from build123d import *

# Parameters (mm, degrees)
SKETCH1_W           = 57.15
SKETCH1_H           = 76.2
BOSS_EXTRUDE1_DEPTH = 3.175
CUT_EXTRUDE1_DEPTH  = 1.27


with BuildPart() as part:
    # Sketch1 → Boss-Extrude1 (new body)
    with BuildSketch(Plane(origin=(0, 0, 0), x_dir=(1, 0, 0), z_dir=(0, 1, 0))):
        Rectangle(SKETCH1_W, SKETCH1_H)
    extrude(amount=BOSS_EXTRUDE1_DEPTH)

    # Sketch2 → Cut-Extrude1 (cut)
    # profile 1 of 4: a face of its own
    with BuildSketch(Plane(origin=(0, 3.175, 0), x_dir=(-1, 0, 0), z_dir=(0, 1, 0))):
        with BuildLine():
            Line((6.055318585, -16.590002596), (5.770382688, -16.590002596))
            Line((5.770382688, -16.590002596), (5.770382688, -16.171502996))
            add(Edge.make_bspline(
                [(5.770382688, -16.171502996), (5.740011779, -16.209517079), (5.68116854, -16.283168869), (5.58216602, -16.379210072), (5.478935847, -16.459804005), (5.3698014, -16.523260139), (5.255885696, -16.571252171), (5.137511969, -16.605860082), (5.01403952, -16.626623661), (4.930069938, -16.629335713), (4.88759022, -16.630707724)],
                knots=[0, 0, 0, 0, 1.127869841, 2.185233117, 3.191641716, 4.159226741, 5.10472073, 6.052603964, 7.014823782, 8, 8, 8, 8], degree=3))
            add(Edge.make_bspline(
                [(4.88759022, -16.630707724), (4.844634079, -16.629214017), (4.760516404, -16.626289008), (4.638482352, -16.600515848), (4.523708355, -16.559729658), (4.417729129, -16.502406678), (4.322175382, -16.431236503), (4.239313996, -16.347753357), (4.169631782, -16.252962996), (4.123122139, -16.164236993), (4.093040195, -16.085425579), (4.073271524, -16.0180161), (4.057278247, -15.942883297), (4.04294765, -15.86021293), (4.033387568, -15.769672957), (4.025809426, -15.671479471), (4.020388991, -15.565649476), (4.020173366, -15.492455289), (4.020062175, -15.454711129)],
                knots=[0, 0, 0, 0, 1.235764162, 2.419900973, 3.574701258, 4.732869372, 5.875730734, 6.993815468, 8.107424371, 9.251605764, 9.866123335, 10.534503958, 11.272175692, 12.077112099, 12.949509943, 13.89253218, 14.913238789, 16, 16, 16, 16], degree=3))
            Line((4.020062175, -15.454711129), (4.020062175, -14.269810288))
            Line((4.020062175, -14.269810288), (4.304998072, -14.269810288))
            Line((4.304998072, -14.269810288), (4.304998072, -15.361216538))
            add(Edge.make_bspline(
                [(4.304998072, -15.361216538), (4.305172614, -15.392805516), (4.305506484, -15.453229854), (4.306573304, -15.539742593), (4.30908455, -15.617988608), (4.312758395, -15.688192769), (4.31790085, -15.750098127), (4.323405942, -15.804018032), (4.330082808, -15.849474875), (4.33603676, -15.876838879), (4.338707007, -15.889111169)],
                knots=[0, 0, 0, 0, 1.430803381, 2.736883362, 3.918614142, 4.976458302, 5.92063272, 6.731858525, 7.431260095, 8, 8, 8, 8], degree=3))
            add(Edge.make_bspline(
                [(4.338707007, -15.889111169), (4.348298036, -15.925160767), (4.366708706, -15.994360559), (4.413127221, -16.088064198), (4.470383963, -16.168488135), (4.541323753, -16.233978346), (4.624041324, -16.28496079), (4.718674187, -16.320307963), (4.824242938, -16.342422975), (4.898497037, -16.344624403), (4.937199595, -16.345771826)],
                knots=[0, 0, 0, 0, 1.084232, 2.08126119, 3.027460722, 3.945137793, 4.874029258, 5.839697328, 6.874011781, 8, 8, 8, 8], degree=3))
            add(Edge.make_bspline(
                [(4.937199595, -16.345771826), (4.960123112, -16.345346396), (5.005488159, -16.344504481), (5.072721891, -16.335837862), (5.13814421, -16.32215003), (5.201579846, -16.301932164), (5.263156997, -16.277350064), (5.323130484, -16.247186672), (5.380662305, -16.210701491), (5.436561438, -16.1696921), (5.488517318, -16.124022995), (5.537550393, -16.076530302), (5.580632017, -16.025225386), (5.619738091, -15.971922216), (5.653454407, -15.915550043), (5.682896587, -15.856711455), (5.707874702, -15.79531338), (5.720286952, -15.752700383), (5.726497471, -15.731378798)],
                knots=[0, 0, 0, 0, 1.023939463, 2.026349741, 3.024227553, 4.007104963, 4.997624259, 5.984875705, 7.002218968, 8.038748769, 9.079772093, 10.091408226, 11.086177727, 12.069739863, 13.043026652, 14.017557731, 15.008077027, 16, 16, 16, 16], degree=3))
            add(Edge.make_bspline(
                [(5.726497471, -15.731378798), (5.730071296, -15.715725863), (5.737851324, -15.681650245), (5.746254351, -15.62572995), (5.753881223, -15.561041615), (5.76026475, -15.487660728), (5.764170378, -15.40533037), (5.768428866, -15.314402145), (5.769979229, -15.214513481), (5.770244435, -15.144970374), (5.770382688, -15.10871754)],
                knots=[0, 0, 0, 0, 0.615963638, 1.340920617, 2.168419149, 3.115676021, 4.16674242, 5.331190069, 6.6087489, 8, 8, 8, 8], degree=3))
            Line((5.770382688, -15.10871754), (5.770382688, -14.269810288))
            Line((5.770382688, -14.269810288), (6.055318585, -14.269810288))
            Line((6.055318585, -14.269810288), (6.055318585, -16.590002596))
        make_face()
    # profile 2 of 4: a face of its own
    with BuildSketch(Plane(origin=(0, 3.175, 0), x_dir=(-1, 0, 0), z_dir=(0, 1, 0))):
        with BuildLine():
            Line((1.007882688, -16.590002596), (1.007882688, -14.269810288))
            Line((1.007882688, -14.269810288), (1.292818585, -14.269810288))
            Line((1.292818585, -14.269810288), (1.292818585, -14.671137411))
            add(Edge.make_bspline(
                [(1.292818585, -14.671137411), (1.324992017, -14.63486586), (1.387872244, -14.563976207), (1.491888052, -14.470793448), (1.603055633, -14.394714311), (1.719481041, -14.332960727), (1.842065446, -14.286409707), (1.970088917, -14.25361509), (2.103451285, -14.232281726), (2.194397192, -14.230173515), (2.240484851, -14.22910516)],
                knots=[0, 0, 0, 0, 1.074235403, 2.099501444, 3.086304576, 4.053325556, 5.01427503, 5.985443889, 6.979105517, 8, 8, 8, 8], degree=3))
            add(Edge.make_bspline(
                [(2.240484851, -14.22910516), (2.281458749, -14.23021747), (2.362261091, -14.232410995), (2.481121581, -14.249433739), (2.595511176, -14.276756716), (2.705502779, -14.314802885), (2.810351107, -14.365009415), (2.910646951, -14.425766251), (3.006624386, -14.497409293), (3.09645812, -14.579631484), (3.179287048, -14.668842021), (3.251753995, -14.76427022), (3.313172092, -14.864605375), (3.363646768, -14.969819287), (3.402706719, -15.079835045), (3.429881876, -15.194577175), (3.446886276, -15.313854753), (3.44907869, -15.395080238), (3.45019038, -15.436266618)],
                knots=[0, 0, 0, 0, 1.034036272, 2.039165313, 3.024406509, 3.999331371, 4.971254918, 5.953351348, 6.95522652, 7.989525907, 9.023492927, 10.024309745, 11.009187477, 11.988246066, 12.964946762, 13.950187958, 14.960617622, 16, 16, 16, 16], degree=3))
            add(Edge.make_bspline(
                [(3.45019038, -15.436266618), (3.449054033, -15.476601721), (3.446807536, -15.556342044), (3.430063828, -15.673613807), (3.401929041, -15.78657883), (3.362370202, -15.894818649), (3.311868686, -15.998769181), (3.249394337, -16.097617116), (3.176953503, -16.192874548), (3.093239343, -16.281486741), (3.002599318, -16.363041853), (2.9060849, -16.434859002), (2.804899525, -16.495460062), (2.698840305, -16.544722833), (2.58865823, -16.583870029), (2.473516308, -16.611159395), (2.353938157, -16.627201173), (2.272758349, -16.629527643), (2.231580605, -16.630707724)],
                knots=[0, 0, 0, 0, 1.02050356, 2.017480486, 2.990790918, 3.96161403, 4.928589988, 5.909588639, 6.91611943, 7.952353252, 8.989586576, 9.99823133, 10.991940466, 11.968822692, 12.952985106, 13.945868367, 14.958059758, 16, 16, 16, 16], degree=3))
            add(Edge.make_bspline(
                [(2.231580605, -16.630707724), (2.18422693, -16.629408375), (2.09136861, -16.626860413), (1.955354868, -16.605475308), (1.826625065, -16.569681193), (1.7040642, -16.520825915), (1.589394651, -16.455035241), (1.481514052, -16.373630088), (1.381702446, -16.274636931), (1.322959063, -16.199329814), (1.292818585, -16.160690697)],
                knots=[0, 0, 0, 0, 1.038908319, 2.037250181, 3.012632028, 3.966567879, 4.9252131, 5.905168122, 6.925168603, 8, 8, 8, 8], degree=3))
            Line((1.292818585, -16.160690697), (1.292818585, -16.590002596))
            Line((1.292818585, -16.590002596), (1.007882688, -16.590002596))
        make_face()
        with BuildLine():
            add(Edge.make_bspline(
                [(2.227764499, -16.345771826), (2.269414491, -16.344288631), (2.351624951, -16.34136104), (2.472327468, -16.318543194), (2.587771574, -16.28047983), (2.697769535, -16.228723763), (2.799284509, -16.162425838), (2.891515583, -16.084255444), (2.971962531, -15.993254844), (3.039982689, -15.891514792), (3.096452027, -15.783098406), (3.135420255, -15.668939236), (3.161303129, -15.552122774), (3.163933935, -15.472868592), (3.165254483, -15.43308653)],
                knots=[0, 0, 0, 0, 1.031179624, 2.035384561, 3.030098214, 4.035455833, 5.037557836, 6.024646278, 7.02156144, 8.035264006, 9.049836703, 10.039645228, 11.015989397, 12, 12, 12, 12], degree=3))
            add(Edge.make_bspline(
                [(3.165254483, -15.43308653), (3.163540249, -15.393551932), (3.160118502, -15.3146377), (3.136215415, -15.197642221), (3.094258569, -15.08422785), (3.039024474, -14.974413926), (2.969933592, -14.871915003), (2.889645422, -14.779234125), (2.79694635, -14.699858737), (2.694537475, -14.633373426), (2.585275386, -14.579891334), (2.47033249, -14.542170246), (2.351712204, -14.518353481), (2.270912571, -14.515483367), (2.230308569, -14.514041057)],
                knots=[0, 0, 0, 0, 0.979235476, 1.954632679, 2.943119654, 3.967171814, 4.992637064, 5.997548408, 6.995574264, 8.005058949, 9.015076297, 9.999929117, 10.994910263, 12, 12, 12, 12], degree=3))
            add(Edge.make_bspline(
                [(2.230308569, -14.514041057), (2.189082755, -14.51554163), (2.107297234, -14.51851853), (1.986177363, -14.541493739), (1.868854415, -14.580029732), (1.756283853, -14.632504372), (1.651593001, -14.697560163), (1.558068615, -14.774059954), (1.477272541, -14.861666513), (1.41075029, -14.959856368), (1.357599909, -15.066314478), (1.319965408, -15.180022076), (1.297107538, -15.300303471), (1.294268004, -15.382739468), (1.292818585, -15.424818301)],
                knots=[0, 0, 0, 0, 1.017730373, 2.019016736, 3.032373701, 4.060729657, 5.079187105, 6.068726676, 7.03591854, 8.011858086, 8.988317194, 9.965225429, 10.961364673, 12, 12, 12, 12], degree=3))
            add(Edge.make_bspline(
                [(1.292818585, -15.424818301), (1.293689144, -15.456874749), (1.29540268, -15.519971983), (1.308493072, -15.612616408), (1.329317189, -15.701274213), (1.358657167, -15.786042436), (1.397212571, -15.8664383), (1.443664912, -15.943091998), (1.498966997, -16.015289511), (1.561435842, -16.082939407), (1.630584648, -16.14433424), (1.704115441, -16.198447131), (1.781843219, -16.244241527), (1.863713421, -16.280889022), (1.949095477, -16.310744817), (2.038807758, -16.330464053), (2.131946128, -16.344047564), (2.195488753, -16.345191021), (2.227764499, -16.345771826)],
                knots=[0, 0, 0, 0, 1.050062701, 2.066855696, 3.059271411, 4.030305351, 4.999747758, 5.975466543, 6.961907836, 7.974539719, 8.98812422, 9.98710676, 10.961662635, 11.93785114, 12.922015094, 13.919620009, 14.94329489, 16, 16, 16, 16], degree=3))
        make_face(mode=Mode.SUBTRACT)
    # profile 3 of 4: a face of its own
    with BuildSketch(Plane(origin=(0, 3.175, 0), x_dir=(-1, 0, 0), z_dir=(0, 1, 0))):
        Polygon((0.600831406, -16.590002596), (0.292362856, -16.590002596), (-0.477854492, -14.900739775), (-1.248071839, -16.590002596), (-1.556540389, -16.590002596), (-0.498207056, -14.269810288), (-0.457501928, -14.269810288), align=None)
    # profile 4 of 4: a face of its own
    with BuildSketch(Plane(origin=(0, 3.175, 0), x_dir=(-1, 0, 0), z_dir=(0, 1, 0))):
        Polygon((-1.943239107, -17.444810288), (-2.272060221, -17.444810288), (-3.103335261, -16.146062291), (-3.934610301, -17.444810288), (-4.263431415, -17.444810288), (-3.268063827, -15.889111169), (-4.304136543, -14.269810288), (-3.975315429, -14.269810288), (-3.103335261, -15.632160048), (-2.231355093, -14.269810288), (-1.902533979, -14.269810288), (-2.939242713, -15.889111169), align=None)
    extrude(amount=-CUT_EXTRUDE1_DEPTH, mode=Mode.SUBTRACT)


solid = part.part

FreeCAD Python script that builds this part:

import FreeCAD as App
import Part
import Sketcher

V = App.Vector
Q = App.Units.Quantity

doc = App.newDocument("Part")
body = doc.addObject("PartDesign::Body", "Body")

# Sketch on XZ plane
sketch1 = body.newObject("Sketcher::SketchObject", "Sketch")
sketch1.AttachmentSupport = (doc.getObject("XZ_Plane"), [""])
sketch1.MapMode = "FlatFace"
sketch1.addGeometry(Part.LineSegment(V(-29, -38, 0), V(-29, 38, 0)), False)
sketch1.addGeometry(Part.LineSegment(V(-29, 38, 0), V(29, 38, 0)), False)
sketch1.addGeometry(Part.LineSegment(V(29, 38, 0), V(29, -38, 0)), False)
sketch1.addGeometry(Part.LineSegment(V(29, -38, 0), V(-29, -38, 0)), False)
sketch1.addConstraint(Sketcher.Constraint("Coincident", 0, 2, 1, 1))
sketch1.addConstraint(Sketcher.Constraint("Coincident", 1, 2, 2, 1))
sketch1.addConstraint(Sketcher.Constraint("Coincident", 2, 2, 3, 1))
sketch1.addConstraint(Sketcher.Constraint("Coincident", 3, 2, 0, 1))
sketch1.addConstraint(Sketcher.Constraint("Vertical", 0))
sketch1.addConstraint(Sketcher.Constraint("Horizontal", 1))
sketch1.addConstraint(Sketcher.Constraint("Vertical", 2))
sketch1.addConstraint(Sketcher.Constraint("Horizontal", 3))
sketch1.addConstraint(Sketcher.Constraint("Symmetric", 0, 2, 2, 2, -1, 1))
sketch1.addConstraint(Sketcher.Constraint("DistanceY", 0, 1, 0, 2, Q("3 in")))
sketch1.addConstraint(Sketcher.Constraint("DistanceX", 1, 1, 1, 2, Q("2.25 in")))
pad1 = body.newObject("PartDesign::Pad", "Pad")
pad1.Profile = sketch1
pad1.Length = Q("0.125 in")
pad1.Reversed = True

# Sketch on XZ plane
sketch2 = body.newObject("Sketcher::SketchObject", "Sketch001")
sketch2.AttachmentSupport = (doc.getObject("XZ_Plane"), [""])
sketch2.MapMode = "FlatFace"
sketch2.AttachmentOffset = App.Placement(V(0, 0, -0.125 * 25.4), App.Rotation())
sketch2.addGeometry(Part.LineSegment(V(-5.770383, -16.590003, 0), V(-6.055319, -16.590003, 0)), False)
sketch2.addGeometry(Part.LineSegment(V(-6.055319, -16.590003, 0), V(-6.055319, -14.26981, 0)), False)
sketch2.addGeometry(Part.LineSegment(V(-6.055319, -14.26981, 0), V(-5.770383, -14.26981, 0)), False)
sketch2.addGeometry(Part.LineSegment(V(-5.770383, -14.26981, 0), V(-5.770383, -15.108718, 0)), False)
sketch2.addGeometry(Part.BSplineCurve([V(-5.726497, -15.731379, 0), V(-5.730071, -15.715726, 0), V(-5.737851, -15.68165, 0), V(-5.746254, -15.62573, 0), V(-5.753881, -15.561042, 0), V(-5.760265, -15.487661, 0), V(-5.76417, -15.40533, 0), V(-5.768429, -15.314402, 0), V(-5.769979, -15.214513, 0), V(-5.770244, -15.14497, 0), V(-5.770383, -15.108718, 0)], [4, 1, 1, 1, 1, 1, 1, 1, 4], [0, 0.615963638, 1.340920617, 2.168419149, 3.115676021, 4.16674242, 5.331190069, 6.6087489, 8], False, 3, [1, 1, 1, 1, 1, 1, 1, 1, 1, 1, 1], False), False)
sketch2.addGeometry(Part.BSplineCurve([V(-4.9372, -16.345772, 0), V(-4.960123, -16.345346, 0), V(-5.005488, -16.344504, 0), V(-5.072722, -16.335838, 0), V(-5.138144, -16.32215, 0), V(-5.20158, -16.301932, 0), V(-5.263157, -16.27735, 0), V(-5.32313, -16.247187, 0), V(-5.380662, -16.210701, 0), V(-5.436561, -16.169692, 0), V(-5.488517, -16.124023, 0), V(-5.53755, -16.07653, 0), V(-5.580632, -16.025225, 0), V(-5.619738, -15.971922, 0), V(-5.653454, -15.91555, 0), V(-5.682897, -15.856711, 0), V(-5.707875, -15.795313, 0), V(-5.720287, -15.7527, 0), V(-5.726497, -15.731379, 0)], [4, 1, 1, 1, 1, 1, 1, 1, 1, 1, 1, 1, 1, 1, 1, 1, 4], [0, 1.023939463, 2.026349741, 3.024227553, 4.007104963, 4.997624259, 5.984875705, 7.002218968, 8.038748769, 9.079772093, 10.091408226, 11.086177727, 12.069739863, 13.043026652, 14.017557731, 15.008077027, 16], False, 3, [1, 1, 1, 1, 1, 1, 1, 1, 1, 1, 1, 1, 1, 1, 1, 1, 1, 1, 1], False), False)
sketch2.addGeometry(Part.BSplineCurve([V(-4.338707, -15.889111, 0), V(-4.348298, -15.925161, 0), V(-4.366709, -15.994361, 0), V(-4.413127, -16.088064, 0), V(-4.470384, -16.168488, 0), V(-4.541324, -16.233978, 0), V(-4.624041, -16.284961, 0), V(-4.718674, -16.320308, 0), V(-4.824243, -16.342423, 0), V(-4.898497, -16.344624, 0), V(-4.9372, -16.345772, 0)], [4, 1, 1, 1, 1, 1, 1, 1, 4], [0, 1.084232, 2.08126119, 3.027460722, 3.945137793, 4.874029258, 5.839697328, 6.874011781, 8], False, 3, [1, 1, 1, 1, 1, 1, 1, 1, 1, 1, 1], False), False)
sketch2.addGeometry(Part.BSplineCurve([V(-4.304998, -15.361217, 0), V(-4.305173, -15.392806, 0), V(-4.305506, -15.45323, 0), V(-4.306573, -15.539743, 0), V(-4.309085, -15.617989, 0), V(-4.312758, -15.688193, 0), V(-4.317901, -15.750098, 0), V(-4.323406, -15.804018, 0), V(-4.330083, -15.849475, 0), V(-4.336037, -15.876839, 0), V(-4.338707, -15.889111, 0)], [4, 1, 1, 1, 1, 1, 1, 1, 4], [0, 1.430803381, 2.736883362, 3.918614142, 4.976458302, 5.92063272, 6.731858525, 7.431260095, 8], False, 3, [1, 1, 1, 1, 1, 1, 1, 1, 1, 1, 1], False), False)
sketch2.addGeometry(Part.LineSegment(V(-4.304998, -15.361217, 0), V(-4.304998, -14.26981, 0)), False)
sketch2.addGeometry(Part.LineSegment(V(-4.304998, -14.26981, 0), V(-4.020062, -14.26981, 0)), False)
sketch2.addGeometry(Part.LineSegment(V(-4.020062, -14.26981, 0), V(-4.020062, -15.454711, 0)), False)
sketch2.addGeometry(Part.BSplineCurve([V(-4.88759, -16.630708, 0), V(-4.844634, -16.629214, 0), V(-4.760516, -16.626289, 0), V(-4.638482, -16.600516, 0), V(-4.523708, -16.55973, 0), V(-4.417729, -16.502407, 0), V(-4.322175, -16.431237, 0), V(-4.239314, -16.347753, 0), V(-4.169632, -16.252963, 0), V(-4.123122, -16.164237, 0), V(-4.09304, -16.085426, 0), V(-4.073272, -16.018016, 0), V(-4.057278, -15.942883, 0), V(-4.042948, -15.860213, 0), V(-4.033388, -15.769673, 0), V(-4.025809, -15.671479, 0), V(-4.020389, -15.565649, 0), V(-4.020173, -15.492455, 0), V(-4.020062, -15.454711, 0)], [4, 1, 1, 1, 1, 1, 1, 1, 1, 1, 1, 1, 1, 1, 1, 1, 4], [0, 1.235764162, 2.419900973, 3.574701258, 4.732869372, 5.875730734, 6.993815468, 8.107424371, 9.251605764, 9.866123335, 10.534503958, 11.272175692, 12.077112099, 12.949509943, 13.89253218, 14.913238789, 16], False, 3, [1, 1, 1, 1, 1, 1, 1, 1, 1, 1, 1, 1, 1, 1, 1, 1, 1, 1, 1], False), False)
sketch2.addGeometry(Part.BSplineCurve([V(-5.770383, -16.171503, 0), V(-5.740012, -16.209517, 0), V(-5.681169, -16.283169, 0), V(-5.582166, -16.37921, 0), V(-5.478936, -16.459804, 0), V(-5.369801, -16.52326, 0), V(-5.255886, -16.571252, 0), V(-5.137512, -16.60586, 0), V(-5.01404, -16.626624, 0), V(-4.93007, -16.629336, 0), V(-4.88759, -16.630708, 0)], [4, 1, 1, 1, 1, 1, 1, 1, 4], [0, 1.127869841, 2.185233117, 3.191641716, 4.159226741, 5.10472073, 6.052603964, 7.014823782, 8], False, 3, [1, 1, 1, 1, 1, 1, 1, 1, 1, 1, 1], False), False)
sketch2.addGeometry(Part.LineSegment(V(-5.770383, -16.171503, 0), V(-5.770383, -16.590003, 0)), False)
sketch2.addGeometry(Part.LineSegment(V(-1.007883, -14.26981, 0), V(-1.007883, -16.590003, 0)), False)
sketch2.addGeometry(Part.LineSegment(V(-1.007883, -16.590003, 0), V(-1.292819, -16.590003, 0)), False)
sketch2.addGeometry(Part.LineSegment(V(-1.292819, -16.590003, 0), V(-1.292819, -16.160691, 0)), False)
sketch2.addGeometry(Part.BSplineCurve([V(-2.231581, -16.630708, 0), V(-2.184227, -16.629408, 0), V(-2.091369, -16.62686, 0), V(-1.955355, -16.605475, 0), V(-1.826625, -16.569681, 0), V(-1.704064, -16.520826, 0), V(-1.589395, -16.455035, 0), V(-1.481514, -16.37363, 0), V(-1.381702, -16.274637, 0), V(-1.322959, -16.19933, 0), V(-1.292819, -16.160691, 0)], [4, 1, 1, 1, 1, 1, 1, 1, 4], [0, 1.038908319, 2.037250181, 3.012632028, 3.966567879, 4.9252131, 5.905168122, 6.925168603, 8], False, 3, [1, 1, 1, 1, 1, 1, 1, 1, 1, 1, 1], False), False)
sketch2.addGeometry(Part.BSplineCurve([V(-3.45019, -15.436267, 0), V(-3.449054, -15.476602, 0), V(-3.446808, -15.556342, 0), V(-3.430064, -15.673614, 0), V(-3.401929, -15.786579, 0), V(-3.36237, -15.894819, 0), V(-3.311869, -15.998769, 0), V(-3.249394, -16.097617, 0), V(-3.176954, -16.192875, 0), V(-3.093239, -16.281487, 0), V(-3.002599, -16.363042, 0), V(-2.906085, -16.434859, 0), V(-2.8049, -16.49546, 0), V(-2.69884, -16.544723, 0), V(-2.588658, -16.58387, 0), V(-2.473516, -16.611159, 0), V(-2.353938, -16.627201, 0), V(-2.272758, -16.629528, 0), V(-2.231581, -16.630708, 0)], [4, 1, 1, 1, 1, 1, 1, 1, 1, 1, 1, 1, 1, 1, 1, 1, 4], [0, 1.02050356, 2.017480486, 2.990790918, 3.96161403, 4.928589988, 5.909588639, 6.91611943, 7.952353252, 8.989586576, 9.99823133, 10.991940466, 11.968822692, 12.952985106, 13.945868367, 14.958059758, 16], False, 3, [1, 1, 1, 1, 1, 1, 1, 1, 1, 1, 1, 1, 1, 1, 1, 1, 1, 1, 1], False), False)
sketch2.addGeometry(Part.BSplineCurve([V(-2.240485, -14.229105, 0), V(-2.281459, -14.230217, 0), V(-2.362261, -14.232411, 0), V(-2.481122, -14.249434, 0), V(-2.595511, -14.276757, 0), V(-2.705503, -14.314803, 0), V(-2.810351, -14.365009, 0), V(-2.910647, -14.425766, 0), V(-3.006624, -14.497409, 0), V(-3.096458, -14.579631, 0), V(-3.179287, -14.668842, 0), V(-3.251754, -14.76427, 0), V(-3.313172, -14.864605, 0), V(-3.363647, -14.969819, 0), V(-3.402707, -15.079835, 0), V(-3.429882, -15.194577, 0), V(-3.446886, -15.313855, 0), V(-3.449079, -15.39508, 0), V(-3.45019, -15.436267, 0)], [4, 1, 1, 1, 1, 1, 1, 1, 1, 1, 1, 1, 1, 1, 1, 1, 4], [0, 1.034036272, 2.039165313, 3.024406509, 3.999331371, 4.971254918, 5.953351348, 6.95522652, 7.989525907, 9.023492927, 10.024309745, 11.009187477, 11.988246066, 12.964946762, 13.950187958, 14.960617622, 16], False, 3, [1, 1, 1, 1, 1, 1, 1, 1, 1, 1, 1, 1, 1, 1, 1, 1, 1, 1, 1], False), False)
sketch2.addGeometry(Part.BSplineCurve([V(-1.292819, -14.671137, 0), V(-1.324992, -14.634866, 0), V(-1.387872, -14.563976, 0), V(-1.491888, -14.470793, 0), V(-1.603056, -14.394714, 0), V(-1.719481, -14.332961, 0), V(-1.842065, -14.28641, 0), V(-1.970089, -14.253615, 0), V(-2.103451, -14.232282, 0), V(-2.194397, -14.230174, 0), V(-2.240485, -14.229105, 0)], [4, 1, 1, 1, 1, 1, 1, 1, 4], [0, 1.074235403, 2.099501444, 3.086304576, 4.053325556, 5.01427503, 5.985443889, 6.979105517, 8], False, 3, [1, 1, 1, 1, 1, 1, 1, 1, 1, 1, 1], False), False)
sketch2.addGeometry(Part.LineSegment(V(-1.292819, -14.671137, 0), V(-1.292819, -14.26981, 0)), False)
sketch2.addGeometry(Part.LineSegment(V(-1.292819, -14.26981, 0), V(-1.007883, -14.26981, 0)), False)
sketch2.addGeometry(Part.BSplineCurve([V(-1.292819, -15.424818, 0), V(-1.293689, -15.456875, 0), V(-1.295403, -15.519972, 0), V(-1.308493, -15.612616, 0), V(-1.329317, -15.701274, 0), V(-1.358657, -15.786042, 0), V(-1.397213, -15.866438, 0), V(-1.443665, -15.943092, 0), V(-1.498967, -16.01529, 0), V(-1.561436, -16.082939, 0), V(-1.630585, -16.144334, 0), V(-1.704115, -16.198447, 0), V(-1.781843, -16.244242, 0), V(-1.863713, -16.280889, 0), V(-1.949095, -16.310745, 0), V(-2.038808, -16.330464, 0), V(-2.131946, -16.344048, 0), V(-2.195489, -16.345191, 0), V(-2.227764, -16.345772, 0)], [4, 1, 1, 1, 1, 1, 1, 1, 1, 1, 1, 1, 1, 1, 1, 1, 4], [0, 1.050062701, 2.066855696, 3.059271411, 4.030305351, 4.999747758, 5.975466543, 6.961907836, 7.974539719, 8.98812422, 9.98710676, 10.961662635, 11.93785114, 12.922015094, 13.919620009, 14.94329489, 16], False, 3, [1, 1, 1, 1, 1, 1, 1, 1, 1, 1, 1, 1, 1, 1, 1, 1, 1, 1, 1], False), False)
sketch2.addGeometry(Part.BSplineCurve([V(-2.230309, -14.514041, 0), V(-2.189083, -14.515542, 0), V(-2.107297, -14.518519, 0), V(-1.986177, -14.541494, 0), V(-1.868854, -14.58003, 0), V(-1.756284, -14.632504, 0), V(-1.651593, -14.69756, 0), V(-1.558069, -14.77406, 0), V(-1.477273, -14.861667, 0), V(-1.41075, -14.959856, 0), V(-1.3576, -15.066314, 0), V(-1.319965, -15.180022, 0), V(-1.297108, -15.300303, 0), V(-1.294268, -15.382739, 0), V(-1.292819, -15.424818, 0)], [4, 1, 1, 1, 1, 1, 1, 1, 1, 1, 1, 1, 4], [0, 1.017730373, 2.019016736, 3.032373701, 4.060729657, 5.079187105, 6.068726676, 7.03591854, 8.011858086, 8.988317194, 9.965225429, 10.961364673, 12], False, 3, [1, 1, 1, 1, 1, 1, 1, 1, 1, 1, 1, 1, 1, 1, 1], False), False)
sketch2.addGeometry(Part.BSplineCurve([V(-3.165254, -15.433087, 0), V(-3.16354, -15.393552, 0), V(-3.160119, -15.314638, 0), V(-3.136215, -15.197642, 0), V(-3.094259, -15.084228, 0), V(-3.039024, -14.974414, 0), V(-2.969934, -14.871915, 0), V(-2.889645, -14.779234, 0), V(-2.796946, -14.699859, 0), V(-2.694537, -14.633373, 0), V(-2.585275, -14.579891, 0), V(-2.470332, -14.54217, 0), V(-2.351712, -14.518353, 0), V(-2.270913, -14.515483, 0), V(-2.230309, -14.514041, 0)], [4, 1, 1, 1, 1, 1, 1, 1, 1, 1, 1, 1, 4], [0, 0.979235476, 1.954632679, 2.943119654, 3.967171814, 4.992637064, 5.997548408, 6.995574264, 8.005058949, 9.015076297, 9.999929117, 10.994910263, 12], False, 3, [1, 1, 1, 1, 1, 1, 1, 1, 1, 1, 1, 1, 1, 1, 1], False), False)
sketch2.addGeometry(Part.BSplineCurve([V(-2.227764, -16.345772, 0), V(-2.269414, -16.344289, 0), V(-2.351625, -16.341361, 0), V(-2.472327, -16.318543, 0), V(-2.587772, -16.28048, 0), V(-2.69777, -16.228724, 0), V(-2.799285, -16.162426, 0), V(-2.891516, -16.084255, 0), V(-2.971963, -15.993255, 0), V(-3.039983, -15.891515, 0), V(-3.096452, -15.783098, 0), V(-3.13542, -15.668939, 0), V(-3.161303, -15.552123, 0), V(-3.163934, -15.472869, 0), V(-3.165254, -15.433087, 0)], [4, 1, 1, 1, 1, 1, 1, 1, 1, 1, 1, 1, 4], [0, 1.031179624, 2.035384561, 3.030098214, 4.035455833, 5.037557836, 6.024646278, 7.02156144, 8.035264006, 9.049836703, 10.039645228, 11.015989397, 12], False, 3, [1, 1, 1, 1, 1, 1, 1, 1, 1, 1, 1, 1, 1, 1, 1], False), False)
sketch2.addGeometry(Part.LineSegment(V(-0.292363, -16.590003, 0), V(-0.600831, -16.590003, 0)), False)
sketch2.addGeometry(Part.LineSegment(V(-0.600831, -16.590003, 0), V(0.457502, -14.26981, 0)), False)
sketch2.addGeometry(Part.LineSegment(V(0.457502, -14.26981, 0), V(0.498207, -14.26981, 0)), False)
sketch2.addGeometry(Part.LineSegment(V(0.498207, -14.26981, 0), V(1.55654, -16.590003, 0)), False)
sketch2.addGeometry(Part.LineSegment(V(1.55654, -16.590003, 0), V(1.248072, -16.590003, 0)), False)
sketch2.addGeometry(Part.LineSegment(V(1.248072, -16.590003, 0), V(0.477854, -14.90074, 0)), False)
sketch2.addGeometry(Part.LineSegment(V(0.477854, -14.90074, 0), V(-0.292363, -16.590003, 0)), False)
sketch2.addGeometry(Part.LineSegment(V(2.27206, -17.44481, 0), V(1.943239, -17.44481, 0)), False)
sketch2.addGeometry(Part.LineSegment(V(1.943239, -17.44481, 0), V(2.939243, -15.889111, 0)), False)
sketch2.addGeometry(Part.LineSegment(V(2.939243, -15.889111, 0), V(1.902534, -14.26981, 0)), False)
sketch2.addGeometry(Part.LineSegment(V(1.902534, -14.26981, 0), V(2.231355, -14.26981, 0)), False)
sketch2.addGeometry(Part.LineSegment(V(2.231355, -14.26981, 0), V(3.103335, -15.63216, 0)), False)
sketch2.addGeometry(Part.LineSegment(V(3.103335, -15.63216, 0), V(3.975315, -14.26981, 0)), False)
sketch2.addGeometry(Part.LineSegment(V(3.975315, -14.26981, 0), V(4.304137, -14.26981, 0)), False)
sketch2.addGeometry(Part.LineSegment(V(4.304137, -14.26981, 0), V(3.268064, -15.889111, 0)), False)
sketch2.addGeometry(Part.LineSegment(V(3.268064, -15.889111, 0), V(4.263431, -17.44481, 0)), False)
sketch2.addGeometry(Part.LineSegment(V(4.263431, -17.44481, 0), V(3.93461, -17.44481, 0)), False)
sketch2.addGeometry(Part.LineSegment(V(3.93461, -17.44481, 0), V(3.103335, -16.146062, 0)), False)
sketch2.addGeometry(Part.LineSegment(V(3.103335, -16.146062, 0), V(2.27206, -17.44481, 0)), False)
sketch2.addConstraint(Sketcher.Constraint("Block", 4))
sketch2.addConstraint(Sketcher.Constraint("Block", 5))
sketch2.addConstraint(Sketcher.Constraint("Block", 6))
sketch2.addConstraint(Sketcher.Constraint("Block", 7))
sketch2.addConstraint(Sketcher.Constraint("Block", 11))
sketch2.addConstraint(Sketcher.Constraint("Block", 12))
sketch2.addConstraint(Sketcher.Constraint("Block", 17))
sketch2.addConstraint(Sketcher.Constraint("Block", 18))
sketch2.addConstraint(Sketcher.Constraint("Block", 19))
sketch2.addConstraint(Sketcher.Constraint("Block", 20))
sketch2.addConstraint(Sketcher.Constraint("Block", 23))
sketch2.addConstraint(Sketcher.Constraint("Block", 24))
sketch2.addConstraint(Sketcher.Constraint("Block", 25))
sketch2.addConstraint(Sketcher.Constraint("Block", 26))
sketch2.addConstraint(Sketcher.Constraint("Coincident", 0, 2, 1, 1))
sketch2.addConstraint(Sketcher.Constraint("Coincident", 1, 2, 2, 1))
sketch2.addConstraint(Sketcher.Constraint("Coincident", 2, 2, 3, 1))
sketch2.addConstraint(Sketcher.Constraint("Coincident", 3, 2, 4, 2))
sketch2.addConstraint(Sketcher.Constraint("Coincident", 7, 1, 8, 1))
sketch2.addConstraint(Sketcher.Constraint("Coincident", 8, 2, 9, 1))
sketch2.addConstraint(Sketcher.Constraint("Coincident", 9, 2, 10, 1))
sketch2.addConstraint(Sketcher.Constraint("Coincident", 10, 2, 11, 2))
sketch2.addConstraint(Sketcher.Constraint("Coincident", 12, 1, 13, 1))
sketch2.addConstraint(Sketcher.Constraint("Coincident", 13, 2, 0, 1))
sketch2.addConstraint(Sketcher.Constraint("Coincident", 14, 2, 15, 1))
sketch2.addConstraint(Sketcher.Constraint("Coincident", 15, 2, 16, 1))
sketch2.addConstraint(Sketcher.Constraint("Coincident", 16, 2, 17, 2))
sketch2.addConstraint(Sketcher.Constraint("Coincident", 20, 1, 21, 1))
sketch2.addConstraint(Sketcher.Constraint("Coincident", 21, 2, 22, 1))
sketch2.addConstraint(Sketcher.Constraint("Coincident", 22, 2, 14, 1))
sketch2.addConstraint(Sketcher.Constraint("Coincident", 27, 2, 28, 1))
sketch2.addConstraint(Sketcher.Constraint("Coincident", 28, 2, 29, 1))
sketch2.addConstraint(Sketcher.Constraint("Coincident", 29, 2, 30, 1))
sketch2.addConstraint(Sketcher.Constraint("Coincident", 30, 2, 31, 1))
sketch2.addConstraint(Sketcher.Constraint("Coincident", 31, 2, 32, 1))
sketch2.addConstraint(Sketcher.Constraint("Coincident", 32, 2, 33, 1))
sketch2.addConstraint(Sketcher.Constraint("Coincident", 33, 2, 27, 1))
sketch2.addConstraint(Sketcher.Constraint("Coincident", 34, 2, 35, 1))
sketch2.addConstraint(Sketcher.Constraint("Coincident", 35, 2, 36, 1))
sketch2.addConstraint(Sketcher.Constraint("Coincident", 36, 2, 37, 1))
sketch2.addConstraint(Sketcher.Constraint("Coincident", 37, 2, 38, 1))
sketch2.addConstraint(Sketcher.Constraint("Coincident", 38, 2, 39, 1))
sketch2.addConstraint(Sketcher.Constraint("Coincident", 39, 2, 40, 1))
sketch2.addConstraint(Sketcher.Constraint("Coincident", 40, 2, 41, 1))
sketch2.addConstraint(Sketcher.Constraint("Coincident", 41, 2, 42, 1))
sketch2.addConstraint(Sketcher.Constraint("Coincident", 42, 2, 43, 1))
sketch2.addConstraint(Sketcher.Constraint("Coincident", 43, 2, 44, 1))
sketch2.addConstraint(Sketcher.Constraint("Coincident", 44, 2, 45, 1))
sketch2.addConstraint(Sketcher.Constraint("Coincident", 45, 2, 34, 1))
sketch2.addConstraint(Sketcher.Constraint("Horizontal", 0))
sketch2.addConstraint(Sketcher.Constraint("Vertical", 1))
sketch2.addConstraint(Sketcher.Constraint("Horizontal", 2))
sketch2.addConstraint(Sketcher.Constraint("Vertical", 3))
sketch2.addConstraint(Sketcher.Constraint("Vertical", 8))
sketch2.addConstraint(Sketcher.Constraint("Horizontal", 9))
sketch2.addConstraint(Sketcher.Constraint("Vertical", 10))
sketch2.addConstraint(Sketcher.Constraint("Vertical", 13))
sketch2.addConstraint(Sketcher.Constraint("Vertical", 14))
sketch2.addConstraint(Sketcher.Constraint("Horizontal", 15))
sketch2.addConstraint(Sketcher.Constraint("Vertical", 16))
sketch2.addConstraint(Sketcher.Constraint("Vertical", 21))
sketch2.addConstraint(Sketcher.Constraint("Horizontal", 22))
sketch2.addConstraint(Sketcher.Constraint("Horizontal", 27))
sketch2.addConstraint(Sketcher.Constraint("Horizontal", 29))
sketch2.addConstraint(Sketcher.Constraint("Horizontal", 31))
sketch2.addConstraint(Sketcher.Constraint("Horizontal", 34))
sketch2.addConstraint(Sketcher.Constraint("Horizontal", 37))
sketch2.addConstraint(Sketcher.Constraint("Horizontal", 40))
sketch2.addConstraint(Sketcher.Constraint("Horizontal", 43))
sketch2.addConstraint(Sketcher.Constraint("DistanceX", 13, 2, 14, 2, Q("0.1875 in")))
sketch2.addConstraint(Sketcher.Constraint("DistanceY", 10, 2, 10, 1, 1.184901))
sketch2.addConstraint(Sketcher.Constraint("DistanceY", 13, 2, 13, 1, 0.4185))
sketch2.addConstraint(Sketcher.Constraint("Distance", 44, 1.542))
sketch2.addConstraint(Sketcher.Constraint("Distance", 45, 1.542))
sketch2.addConstraint(Sketcher.Constraint("DistanceX", 27, 2, 27, 1, 0.308469))
sketch2.addConstraint(Sketcher.Constraint("DistanceX", 31, 2, 31, 1, 0.308469))
sketch2.addConstraint(Sketcher.Constraint("DistanceX", 34, 2, 34, 1, 0.328821))
sketch2.addConstraint(Sketcher.Constraint("DistanceX", 37, 1, 37, 2, 0.328821))
sketch2.addConstraint(Sketcher.Constraint("DistanceX", 40, 1, 40, 2, 0.328821))
sketch2.addConstraint(Sketcher.Constraint("DistanceX", 43, 2, 43, 1, 0.328821))
sketch2.addConstraint(Sketcher.Constraint("DistanceY", 16, 1, 16, 2, 0.429312))
sketch2.addConstraint(Sketcher.Constraint("DistanceX", -1, 1, 28, 2, 0.457502))
sketch2.addConstraint(Sketcher.Constraint("DistanceY", 10, 2, 2, 2, 1.184901))
sketch2.addConstraint(Sketcher.Constraint("DistanceY", 10, 2, 21, 2, 1.184901))
sketch2.addConstraint(Sketcher.Constraint("DistanceX", 30, 2, 34, 2, 0.386699))
sketch2.addConstraint(Sketcher.Constraint("DistanceX", 33, 2, 34, 2, 2.235602))
sketch2.addConstraint(Sketcher.Constraint("DistanceY", 34, 2, 35, 2, 1.555699))
sketch2.addConstraint(Sketcher.Constraint("DistanceY", 35, 2, 29, 2, 1.619301))
sketch2.addConstraint(Sketcher.Constraint("DistanceY", 35, 2, 36, 2, 1.619301))
sketch2.addConstraint(Sketcher.Constraint("DistanceX", 32, 2, 37, 2, 1.753501))
sketch2.addConstraint(Sketcher.Constraint("DistanceX", 36, 2, 38, 2, 1.200801))
sketch2.addConstraint(Sketcher.Constraint("DistanceY", 35, 2, 39, 2, 1.619301))
sketch2.addConstraint(Sketcher.Constraint("DistanceX", 38, 2, 40, 2, 1.200801))
sketch2.addConstraint(Sketcher.Constraint("DistanceY", 41, 2, 39, 2, 1.619301))
sketch2.addConstraint(Sketcher.Constraint("DistanceY", 42, 2, 41, 2, 1.555699))
sketch2.addConstraint(Sketcher.Constraint("Distance", 28, 2.550169))
sketch2.addConstraint(Sketcher.Constraint("Distance", 30, 2.550169))
sketch2.addConstraint(Sketcher.Constraint("Distance", 35, 1.84722))
sketch2.addConstraint(Sketcher.Constraint("Distance", 41, 1.92239))
sketch2.addConstraint(Sketcher.Constraint("DistanceX", 0, 2, 0, 1, 0.284936))
sketch2.addConstraint(Sketcher.Constraint("DistanceX", 29, 1, 29, 2, 0.040705))
sketch2.addConstraint(Sketcher.Constraint("DistanceX", 27, 2, -1, 1, 0.600831))
sketch2.addConstraint(Sketcher.Constraint("DistanceY", 28, 2, -1, 1, 14.26981))
sketch2.addConstraint(Sketcher.Constraint("DistanceY", 32, 2, -1, 1, 14.90074))
sketch2.addConstraint(Sketcher.Constraint("DistanceY", 38, 2, -1, 1, 15.63216))
sketch2.addConstraint(Sketcher.Constraint("DistanceX", -1, 1, 42, 2, 4.263431))
sketch2.addConstraint(Sketcher.Constraint("DistanceX", 32, 2, 35, 2, 2.461388))
pocket1 = body.newObject("PartDesign::Pocket", "Pocket")
pocket1.Profile = sketch2
pocket1.Length = Q("0.05 in")
pocket1.Reversed = True

doc.recompute()
